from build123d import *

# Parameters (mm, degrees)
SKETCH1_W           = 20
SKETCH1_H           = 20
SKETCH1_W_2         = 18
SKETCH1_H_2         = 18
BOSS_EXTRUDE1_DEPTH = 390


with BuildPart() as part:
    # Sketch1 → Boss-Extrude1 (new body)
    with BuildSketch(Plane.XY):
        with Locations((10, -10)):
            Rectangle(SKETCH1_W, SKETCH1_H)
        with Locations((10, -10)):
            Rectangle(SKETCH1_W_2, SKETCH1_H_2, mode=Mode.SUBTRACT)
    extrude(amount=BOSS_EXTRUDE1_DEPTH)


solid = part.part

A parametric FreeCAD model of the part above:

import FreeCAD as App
import Part
import Sketcher

V = App.Vector
Q = App.Units.Quantity


def add_polygon(sketch, points):
    """Adds a closed chain of lines whose ends are joined by coincident constraints."""
    first, n = sketch.GeometryCount, len(points)
    for a, b in zip(points, points[1:] + points[:1]):
        sketch.addGeometry(Part.LineSegment(App.Vector(*a, 0), App.Vector(*b, 0)), False)
    for i in range(n):
        sketch.addConstraint(Sketcher.Constraint("Coincident", first + i, 2, first + (i + 1) % n, 1))

doc = App.newDocument("Part")
body = doc.addObject("PartDesign::Body", "Body")

# Sketch on XY plane
sketch1 = body.newObject("Sketcher::SketchObject", "Sketch")
sketch1.AttachmentSupport = (doc.getObject("XY_Plane"), [""])
sketch1.MapMode = "FlatFace"
add_polygon(sketch1, [(0, 0), (0, -20), (20, -20), (20, 0)])  # lines 0-3
add_polygon(sketch1, [(19, -19), (1, -19), (1, -1), (19, -1)])  # lines 4-7
sketch1.addConstraint([
    Sketcher.Constraint("Vertical", 0),
    Sketcher.Constraint("Horizontal", 1),
    Sketcher.Constraint("Vertical", 2),
    Sketcher.Constraint("Horizontal", 3),
    Sketcher.Constraint("Horizontal", 4),
    Sketcher.Constraint("Vertical", 5),
    Sketcher.Constraint("Horizontal", 6),
    Sketcher.Constraint("Vertical", 7),
    Sketcher.Constraint("Coincident", 3, 2, -1, 1),
    Sketcher.Constraint("Equal", 3, 0),
    Sketcher.Constraint("Equal", 6, 5),
    Sketcher.Constraint("DistanceX", 1, 1, 1, 2, Q("20 mm")),
    Sketcher.Constraint("DistanceX", 4, 2, 4, 1, Q("18 mm")),
    Sketcher.Constraint("DistanceX", -1, 1, 4, 2, Q("1 mm")),
    Sketcher.Constraint("DistanceY", 4, 2, -1, 1, Q("19 mm")),
])
pad1 = body.newObject("PartDesign::Pad", "Pad")
pad1.Profile = sketch1
pad1.Length = 390

doc.recompute()
